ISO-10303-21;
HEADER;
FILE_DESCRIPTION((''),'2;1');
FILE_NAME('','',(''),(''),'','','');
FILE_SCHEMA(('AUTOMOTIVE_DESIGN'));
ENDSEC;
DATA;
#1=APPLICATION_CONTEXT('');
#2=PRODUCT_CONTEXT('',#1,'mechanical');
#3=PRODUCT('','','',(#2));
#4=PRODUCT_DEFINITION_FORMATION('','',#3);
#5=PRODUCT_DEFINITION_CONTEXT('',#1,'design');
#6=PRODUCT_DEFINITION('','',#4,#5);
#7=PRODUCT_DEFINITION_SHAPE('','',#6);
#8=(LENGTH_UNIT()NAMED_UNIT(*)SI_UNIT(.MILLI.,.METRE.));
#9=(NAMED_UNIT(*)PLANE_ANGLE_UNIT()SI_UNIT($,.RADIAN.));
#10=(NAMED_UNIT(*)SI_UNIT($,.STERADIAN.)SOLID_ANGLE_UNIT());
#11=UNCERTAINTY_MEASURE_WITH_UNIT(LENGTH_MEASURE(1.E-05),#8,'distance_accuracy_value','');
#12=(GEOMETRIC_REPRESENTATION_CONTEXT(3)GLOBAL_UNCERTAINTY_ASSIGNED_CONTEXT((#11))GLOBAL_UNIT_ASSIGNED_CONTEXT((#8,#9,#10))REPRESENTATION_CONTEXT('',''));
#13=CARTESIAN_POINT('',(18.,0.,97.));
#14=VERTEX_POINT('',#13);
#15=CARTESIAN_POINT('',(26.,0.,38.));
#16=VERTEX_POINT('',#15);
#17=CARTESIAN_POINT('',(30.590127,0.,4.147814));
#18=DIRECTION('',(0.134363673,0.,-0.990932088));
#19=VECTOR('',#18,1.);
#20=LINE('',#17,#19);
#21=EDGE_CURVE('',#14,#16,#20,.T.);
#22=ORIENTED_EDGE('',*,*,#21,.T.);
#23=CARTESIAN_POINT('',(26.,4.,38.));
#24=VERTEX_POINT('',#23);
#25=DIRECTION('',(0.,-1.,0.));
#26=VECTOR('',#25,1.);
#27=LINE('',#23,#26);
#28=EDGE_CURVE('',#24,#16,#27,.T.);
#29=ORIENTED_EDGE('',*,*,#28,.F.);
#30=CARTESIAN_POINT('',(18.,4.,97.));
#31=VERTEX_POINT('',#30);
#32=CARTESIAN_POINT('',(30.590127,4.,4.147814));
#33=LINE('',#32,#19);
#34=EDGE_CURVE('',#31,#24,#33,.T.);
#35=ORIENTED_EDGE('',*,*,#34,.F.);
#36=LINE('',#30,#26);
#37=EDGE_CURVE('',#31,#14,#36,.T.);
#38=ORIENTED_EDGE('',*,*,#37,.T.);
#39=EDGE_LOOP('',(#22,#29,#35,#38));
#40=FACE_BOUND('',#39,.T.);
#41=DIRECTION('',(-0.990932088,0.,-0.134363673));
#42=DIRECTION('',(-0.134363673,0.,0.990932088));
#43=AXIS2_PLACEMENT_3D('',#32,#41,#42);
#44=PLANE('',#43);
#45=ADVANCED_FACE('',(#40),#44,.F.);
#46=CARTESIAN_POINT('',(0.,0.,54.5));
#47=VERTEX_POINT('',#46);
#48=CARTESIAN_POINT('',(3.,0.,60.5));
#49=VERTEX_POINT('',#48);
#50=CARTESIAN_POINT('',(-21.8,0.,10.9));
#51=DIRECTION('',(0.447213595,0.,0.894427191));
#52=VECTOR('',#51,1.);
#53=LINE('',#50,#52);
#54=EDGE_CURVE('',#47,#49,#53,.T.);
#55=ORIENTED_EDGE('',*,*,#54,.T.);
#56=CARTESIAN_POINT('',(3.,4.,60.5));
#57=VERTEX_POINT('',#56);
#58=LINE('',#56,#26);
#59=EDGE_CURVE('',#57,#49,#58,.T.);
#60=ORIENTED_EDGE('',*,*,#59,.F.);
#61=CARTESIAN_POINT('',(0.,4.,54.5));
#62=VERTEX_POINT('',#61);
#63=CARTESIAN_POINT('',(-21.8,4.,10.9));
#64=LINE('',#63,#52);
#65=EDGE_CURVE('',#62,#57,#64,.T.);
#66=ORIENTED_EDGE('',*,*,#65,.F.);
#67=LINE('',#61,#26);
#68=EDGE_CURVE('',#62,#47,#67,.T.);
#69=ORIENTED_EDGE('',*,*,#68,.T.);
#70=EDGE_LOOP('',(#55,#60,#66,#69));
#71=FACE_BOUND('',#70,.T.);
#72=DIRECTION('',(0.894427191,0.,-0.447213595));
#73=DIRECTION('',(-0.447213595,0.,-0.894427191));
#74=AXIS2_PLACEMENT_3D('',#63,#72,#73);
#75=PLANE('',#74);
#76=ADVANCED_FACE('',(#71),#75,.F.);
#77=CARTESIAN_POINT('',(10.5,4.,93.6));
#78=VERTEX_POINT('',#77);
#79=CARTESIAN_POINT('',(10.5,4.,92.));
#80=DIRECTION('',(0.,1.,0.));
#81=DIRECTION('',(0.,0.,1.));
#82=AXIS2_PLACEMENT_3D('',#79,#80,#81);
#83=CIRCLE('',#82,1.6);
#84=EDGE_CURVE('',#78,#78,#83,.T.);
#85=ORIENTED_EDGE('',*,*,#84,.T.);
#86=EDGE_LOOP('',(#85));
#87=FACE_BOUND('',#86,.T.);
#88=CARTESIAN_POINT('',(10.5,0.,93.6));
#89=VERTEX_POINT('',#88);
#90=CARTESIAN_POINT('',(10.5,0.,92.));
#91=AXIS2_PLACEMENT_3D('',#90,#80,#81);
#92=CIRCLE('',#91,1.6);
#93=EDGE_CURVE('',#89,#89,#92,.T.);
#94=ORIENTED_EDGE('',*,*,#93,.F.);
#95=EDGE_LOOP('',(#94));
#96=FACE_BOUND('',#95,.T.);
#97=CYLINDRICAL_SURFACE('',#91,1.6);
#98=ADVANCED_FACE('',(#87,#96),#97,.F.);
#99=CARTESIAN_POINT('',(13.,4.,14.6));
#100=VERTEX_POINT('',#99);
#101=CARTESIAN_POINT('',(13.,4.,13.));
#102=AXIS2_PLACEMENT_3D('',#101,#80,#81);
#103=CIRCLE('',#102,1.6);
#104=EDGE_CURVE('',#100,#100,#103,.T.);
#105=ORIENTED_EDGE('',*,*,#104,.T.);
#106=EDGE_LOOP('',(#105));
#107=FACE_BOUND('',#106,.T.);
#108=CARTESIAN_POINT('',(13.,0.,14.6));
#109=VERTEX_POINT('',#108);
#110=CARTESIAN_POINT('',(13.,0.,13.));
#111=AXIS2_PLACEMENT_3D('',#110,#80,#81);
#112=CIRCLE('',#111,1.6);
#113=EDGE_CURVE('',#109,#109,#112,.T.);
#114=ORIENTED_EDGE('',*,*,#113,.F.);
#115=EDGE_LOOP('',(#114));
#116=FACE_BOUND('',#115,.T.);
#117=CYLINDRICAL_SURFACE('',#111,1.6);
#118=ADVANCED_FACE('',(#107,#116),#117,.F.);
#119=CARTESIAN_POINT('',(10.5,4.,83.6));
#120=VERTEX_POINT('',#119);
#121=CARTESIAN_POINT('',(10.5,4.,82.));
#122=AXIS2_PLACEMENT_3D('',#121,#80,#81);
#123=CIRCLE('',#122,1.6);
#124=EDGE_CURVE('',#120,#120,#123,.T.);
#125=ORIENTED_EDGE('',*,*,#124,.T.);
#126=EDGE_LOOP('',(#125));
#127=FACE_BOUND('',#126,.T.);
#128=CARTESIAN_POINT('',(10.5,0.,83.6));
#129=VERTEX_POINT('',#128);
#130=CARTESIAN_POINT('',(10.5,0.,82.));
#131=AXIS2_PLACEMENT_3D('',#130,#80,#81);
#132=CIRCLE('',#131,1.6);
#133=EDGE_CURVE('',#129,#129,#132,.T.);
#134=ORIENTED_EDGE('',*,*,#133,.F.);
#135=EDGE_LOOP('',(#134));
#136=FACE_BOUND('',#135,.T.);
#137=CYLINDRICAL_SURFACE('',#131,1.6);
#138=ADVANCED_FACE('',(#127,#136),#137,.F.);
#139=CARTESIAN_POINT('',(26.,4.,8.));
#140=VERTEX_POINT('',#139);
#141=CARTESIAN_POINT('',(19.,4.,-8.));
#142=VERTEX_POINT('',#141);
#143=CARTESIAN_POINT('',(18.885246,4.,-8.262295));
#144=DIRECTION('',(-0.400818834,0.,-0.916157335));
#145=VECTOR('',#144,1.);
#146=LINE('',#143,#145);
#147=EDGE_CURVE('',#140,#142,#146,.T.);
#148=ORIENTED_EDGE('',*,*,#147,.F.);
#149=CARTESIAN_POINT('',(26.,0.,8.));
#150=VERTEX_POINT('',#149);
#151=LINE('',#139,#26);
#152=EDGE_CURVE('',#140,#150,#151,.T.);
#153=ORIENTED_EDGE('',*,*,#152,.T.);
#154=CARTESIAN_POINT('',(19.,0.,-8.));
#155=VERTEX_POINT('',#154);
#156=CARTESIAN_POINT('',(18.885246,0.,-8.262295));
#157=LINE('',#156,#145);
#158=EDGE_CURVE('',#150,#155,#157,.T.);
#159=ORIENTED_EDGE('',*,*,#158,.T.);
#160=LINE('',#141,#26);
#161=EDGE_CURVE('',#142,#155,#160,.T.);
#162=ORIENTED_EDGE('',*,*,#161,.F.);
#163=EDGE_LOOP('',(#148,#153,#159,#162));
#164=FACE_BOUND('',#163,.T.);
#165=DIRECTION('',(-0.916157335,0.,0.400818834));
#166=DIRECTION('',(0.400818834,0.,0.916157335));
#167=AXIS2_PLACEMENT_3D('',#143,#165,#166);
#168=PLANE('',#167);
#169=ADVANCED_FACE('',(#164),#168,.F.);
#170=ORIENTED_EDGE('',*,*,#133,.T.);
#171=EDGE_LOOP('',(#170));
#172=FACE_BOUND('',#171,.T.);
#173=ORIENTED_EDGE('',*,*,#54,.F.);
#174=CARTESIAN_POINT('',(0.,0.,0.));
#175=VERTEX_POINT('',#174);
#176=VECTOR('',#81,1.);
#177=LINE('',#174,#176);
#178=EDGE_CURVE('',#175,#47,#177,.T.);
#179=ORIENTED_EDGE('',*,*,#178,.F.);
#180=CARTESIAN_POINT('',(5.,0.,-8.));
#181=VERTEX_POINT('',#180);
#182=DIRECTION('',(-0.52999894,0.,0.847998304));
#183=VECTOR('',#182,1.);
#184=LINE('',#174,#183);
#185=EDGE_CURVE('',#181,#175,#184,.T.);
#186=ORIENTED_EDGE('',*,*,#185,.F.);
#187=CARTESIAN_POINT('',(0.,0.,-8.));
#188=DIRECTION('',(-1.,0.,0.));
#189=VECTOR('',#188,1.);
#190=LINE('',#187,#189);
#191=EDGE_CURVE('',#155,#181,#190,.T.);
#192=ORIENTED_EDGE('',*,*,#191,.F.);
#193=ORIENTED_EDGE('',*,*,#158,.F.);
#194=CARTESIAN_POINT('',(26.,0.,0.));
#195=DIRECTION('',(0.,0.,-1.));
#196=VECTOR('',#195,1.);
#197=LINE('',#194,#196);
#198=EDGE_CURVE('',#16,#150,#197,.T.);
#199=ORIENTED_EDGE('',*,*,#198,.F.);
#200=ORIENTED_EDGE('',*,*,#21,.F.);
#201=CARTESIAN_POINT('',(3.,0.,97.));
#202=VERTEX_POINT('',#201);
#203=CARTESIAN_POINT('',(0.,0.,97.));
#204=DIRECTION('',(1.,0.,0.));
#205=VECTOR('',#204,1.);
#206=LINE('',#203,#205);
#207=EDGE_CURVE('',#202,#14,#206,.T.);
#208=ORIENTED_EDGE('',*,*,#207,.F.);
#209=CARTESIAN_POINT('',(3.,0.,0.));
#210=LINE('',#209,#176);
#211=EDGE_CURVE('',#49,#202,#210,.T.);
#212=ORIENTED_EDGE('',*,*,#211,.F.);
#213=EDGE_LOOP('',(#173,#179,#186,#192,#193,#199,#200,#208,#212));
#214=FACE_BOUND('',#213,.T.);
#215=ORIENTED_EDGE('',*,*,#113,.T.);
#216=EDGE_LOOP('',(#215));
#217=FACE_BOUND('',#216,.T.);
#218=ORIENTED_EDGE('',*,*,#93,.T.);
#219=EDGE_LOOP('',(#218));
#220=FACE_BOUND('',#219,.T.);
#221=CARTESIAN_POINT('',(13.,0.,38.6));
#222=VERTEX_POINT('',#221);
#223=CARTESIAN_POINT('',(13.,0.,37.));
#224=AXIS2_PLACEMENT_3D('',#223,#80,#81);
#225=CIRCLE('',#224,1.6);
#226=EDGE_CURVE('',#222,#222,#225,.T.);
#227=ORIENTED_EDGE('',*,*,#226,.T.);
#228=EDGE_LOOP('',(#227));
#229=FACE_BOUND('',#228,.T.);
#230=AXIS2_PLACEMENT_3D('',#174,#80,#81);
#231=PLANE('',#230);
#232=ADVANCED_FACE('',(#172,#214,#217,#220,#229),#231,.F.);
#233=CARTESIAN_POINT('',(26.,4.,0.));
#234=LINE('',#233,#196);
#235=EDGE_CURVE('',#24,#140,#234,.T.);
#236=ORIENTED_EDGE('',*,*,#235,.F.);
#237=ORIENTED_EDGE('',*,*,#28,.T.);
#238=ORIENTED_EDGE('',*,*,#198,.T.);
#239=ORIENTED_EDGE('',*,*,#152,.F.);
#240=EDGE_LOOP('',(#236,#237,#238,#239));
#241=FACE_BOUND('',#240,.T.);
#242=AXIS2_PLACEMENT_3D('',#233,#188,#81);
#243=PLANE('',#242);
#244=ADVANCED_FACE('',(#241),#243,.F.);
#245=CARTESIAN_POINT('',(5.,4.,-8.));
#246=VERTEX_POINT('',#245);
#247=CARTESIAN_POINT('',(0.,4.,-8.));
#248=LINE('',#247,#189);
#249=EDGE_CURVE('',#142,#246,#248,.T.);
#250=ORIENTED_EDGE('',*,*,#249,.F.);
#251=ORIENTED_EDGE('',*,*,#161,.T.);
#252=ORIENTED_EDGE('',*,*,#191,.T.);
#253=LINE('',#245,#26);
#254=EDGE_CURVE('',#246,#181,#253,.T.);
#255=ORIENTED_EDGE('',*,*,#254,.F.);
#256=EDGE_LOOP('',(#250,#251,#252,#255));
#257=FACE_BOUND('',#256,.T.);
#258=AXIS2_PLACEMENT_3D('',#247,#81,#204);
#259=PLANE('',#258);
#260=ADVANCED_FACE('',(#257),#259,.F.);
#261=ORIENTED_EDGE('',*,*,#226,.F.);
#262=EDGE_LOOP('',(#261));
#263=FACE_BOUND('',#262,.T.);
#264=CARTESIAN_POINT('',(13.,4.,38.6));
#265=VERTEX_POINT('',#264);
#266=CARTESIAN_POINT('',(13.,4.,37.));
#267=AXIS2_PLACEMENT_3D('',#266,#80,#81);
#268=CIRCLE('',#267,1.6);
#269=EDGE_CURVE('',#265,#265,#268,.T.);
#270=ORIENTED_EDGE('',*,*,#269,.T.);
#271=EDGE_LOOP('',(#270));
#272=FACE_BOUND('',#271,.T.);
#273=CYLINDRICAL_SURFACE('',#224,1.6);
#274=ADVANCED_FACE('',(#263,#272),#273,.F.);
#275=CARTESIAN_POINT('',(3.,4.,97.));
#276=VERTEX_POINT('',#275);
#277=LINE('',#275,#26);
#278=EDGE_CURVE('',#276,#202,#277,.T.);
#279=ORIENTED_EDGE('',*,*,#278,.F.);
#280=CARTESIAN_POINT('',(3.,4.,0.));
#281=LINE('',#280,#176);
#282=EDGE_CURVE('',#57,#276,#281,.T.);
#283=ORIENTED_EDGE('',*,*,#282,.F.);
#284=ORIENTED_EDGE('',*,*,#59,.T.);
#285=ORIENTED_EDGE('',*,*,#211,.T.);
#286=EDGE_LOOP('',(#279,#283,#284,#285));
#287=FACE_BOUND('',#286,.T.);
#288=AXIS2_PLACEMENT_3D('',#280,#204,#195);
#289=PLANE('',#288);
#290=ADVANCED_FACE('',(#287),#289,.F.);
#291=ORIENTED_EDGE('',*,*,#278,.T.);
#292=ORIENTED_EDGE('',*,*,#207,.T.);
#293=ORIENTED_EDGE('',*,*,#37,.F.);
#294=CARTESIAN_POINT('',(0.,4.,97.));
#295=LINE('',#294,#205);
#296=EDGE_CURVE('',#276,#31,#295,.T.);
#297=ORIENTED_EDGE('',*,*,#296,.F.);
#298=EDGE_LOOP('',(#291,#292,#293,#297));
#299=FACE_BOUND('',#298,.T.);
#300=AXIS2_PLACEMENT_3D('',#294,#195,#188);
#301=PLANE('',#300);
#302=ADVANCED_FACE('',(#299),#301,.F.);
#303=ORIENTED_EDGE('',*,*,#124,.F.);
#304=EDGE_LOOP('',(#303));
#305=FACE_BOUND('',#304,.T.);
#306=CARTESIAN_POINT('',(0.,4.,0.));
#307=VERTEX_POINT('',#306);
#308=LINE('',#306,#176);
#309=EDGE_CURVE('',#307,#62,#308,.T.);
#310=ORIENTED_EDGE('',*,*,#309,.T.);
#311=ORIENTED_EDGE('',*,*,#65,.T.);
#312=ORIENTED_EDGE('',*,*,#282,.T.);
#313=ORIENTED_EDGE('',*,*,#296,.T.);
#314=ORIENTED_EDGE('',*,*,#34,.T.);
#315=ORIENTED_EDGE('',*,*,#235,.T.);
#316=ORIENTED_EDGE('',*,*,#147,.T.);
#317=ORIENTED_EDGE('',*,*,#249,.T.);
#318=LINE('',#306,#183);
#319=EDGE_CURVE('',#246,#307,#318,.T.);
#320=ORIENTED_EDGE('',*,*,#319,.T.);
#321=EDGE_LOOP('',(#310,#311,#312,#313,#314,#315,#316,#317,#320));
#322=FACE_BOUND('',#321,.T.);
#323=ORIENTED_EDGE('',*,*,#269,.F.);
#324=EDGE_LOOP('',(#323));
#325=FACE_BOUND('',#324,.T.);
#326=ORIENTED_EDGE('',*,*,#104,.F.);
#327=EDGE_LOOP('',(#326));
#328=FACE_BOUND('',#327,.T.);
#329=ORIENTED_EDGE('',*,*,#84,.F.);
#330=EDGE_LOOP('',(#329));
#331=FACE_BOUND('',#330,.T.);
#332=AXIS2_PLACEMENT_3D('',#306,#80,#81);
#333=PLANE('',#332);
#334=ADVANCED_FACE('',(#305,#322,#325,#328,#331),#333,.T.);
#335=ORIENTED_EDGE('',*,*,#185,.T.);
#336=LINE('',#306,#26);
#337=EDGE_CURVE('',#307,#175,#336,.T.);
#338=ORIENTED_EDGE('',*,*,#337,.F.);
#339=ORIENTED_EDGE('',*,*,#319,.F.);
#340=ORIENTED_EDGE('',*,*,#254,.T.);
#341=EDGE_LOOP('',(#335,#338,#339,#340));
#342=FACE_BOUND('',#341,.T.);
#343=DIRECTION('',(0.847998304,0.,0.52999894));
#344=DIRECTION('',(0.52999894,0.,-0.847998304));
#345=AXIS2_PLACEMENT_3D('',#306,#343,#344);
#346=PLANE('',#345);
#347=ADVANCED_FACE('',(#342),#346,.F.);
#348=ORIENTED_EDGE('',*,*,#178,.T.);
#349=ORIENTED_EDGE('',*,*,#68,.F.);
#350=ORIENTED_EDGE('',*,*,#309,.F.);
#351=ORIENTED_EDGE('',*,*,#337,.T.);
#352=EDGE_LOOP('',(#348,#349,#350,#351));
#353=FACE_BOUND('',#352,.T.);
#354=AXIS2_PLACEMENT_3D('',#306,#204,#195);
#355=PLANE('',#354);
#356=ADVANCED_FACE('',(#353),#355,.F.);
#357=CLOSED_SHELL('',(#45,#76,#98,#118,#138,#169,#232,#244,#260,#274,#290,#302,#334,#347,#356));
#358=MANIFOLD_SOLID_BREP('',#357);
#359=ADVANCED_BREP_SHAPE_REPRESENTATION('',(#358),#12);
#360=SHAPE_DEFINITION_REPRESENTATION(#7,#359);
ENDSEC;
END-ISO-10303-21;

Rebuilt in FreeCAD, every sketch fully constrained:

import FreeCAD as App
import Part
import Sketcher

V = App.Vector
Q = App.Units.Quantity


def add_polygon(sketch, points):
    """Adds a closed chain of lines whose ends are joined by coincident constraints."""
    first, n = sketch.GeometryCount, len(points)
    for a, b in zip(points, points[1:] + points[:1]):
        sketch.addGeometry(Part.LineSegment(App.Vector(*a, 0), App.Vector(*b, 0)), False)
    for i in range(n):
        sketch.addConstraint(Sketcher.Constraint("Coincident", first + i, 2, first + (i + 1) % n, 1))

doc = App.newDocument("Part")
body = doc.addObject("PartDesign::Body", "Body")

sketch1 = doc.addObject("Sketcher::SketchObject", "Sketch")
body.addObject(sketch1)
sketch1.AttachmentSupport = (doc.XZ_Plane, [""])
sketch1.MapMode = "FlatFace"
add_polygon(sketch1, [(0, 0), (0, 54.5), (3, 60.5), (3, 97), (18, 97), (26, 38), (26, 8), (19, -8), (5, -8)])
sketch1.addConstraint(Sketcher.Constraint("Vertical", 0))
sketch1.addConstraint(Sketcher.Constraint("Vertical", 2))
sketch1.addConstraint(Sketcher.Constraint("Horizontal", 3))
sketch1.addConstraint(Sketcher.Constraint("Vertical", 5))
sketch1.addConstraint(Sketcher.Constraint("Horizontal", 7))
sketch1.addConstraint(Sketcher.Constraint("Coincident", 8, 2, -1, 1))
sketch1.addConstraint(Sketcher.Constraint("DistanceX", 3, 1, 3, 2, Q("15 mm")))
sketch1.addConstraint(Sketcher.Constraint("DistanceX", 7, 2, 7, 1, Q("14 mm")))
sketch1.addConstraint(Sketcher.Constraint("DistanceY", 5, 2, 5, 1, Q("30 mm")))
sketch1.addConstraint(Sketcher.Constraint("DistanceY", 0, 1, 0, 2, Q("54.5 mm")))
sketch1.addConstraint(Sketcher.Constraint("DistanceY", 2, 1, 2, 2, Q("36.5 mm")))
sketch1.addConstraint(Sketcher.Constraint("DistanceX", -1, 1, 1, 2, Q("3 mm")))
sketch1.addConstraint(Sketcher.Constraint("DistanceY", -1, 1, 2, 2, Q("97 mm")))
sketch1.addConstraint(Sketcher.Constraint("DistanceX", -1, 1, 4, 2, Q("26 mm")))
sketch1.addConstraint(Sketcher.Constraint("DistanceY", -1, 1, 4, 2, Q("38 mm")))
sketch1.addConstraint(Sketcher.Constraint("DistanceX", -1, 1, 6, 2, Q("19 mm")))
sketch1.addConstraint(Sketcher.Constraint("DistanceY", 6, 2, -1, 1, Q("8 mm")))
pad1 = doc.addObject("PartDesign::Pad", "Pad")
body.addObject(pad1)
pad1.Profile = sketch1
pad1.Length = 4
pad1.Reversed = True

sketch2 = doc.addObject("Sketcher::SketchObject", "Sketch001")
body.addObject(sketch2)
sketch2.AttachmentSupport = (doc.XZ_Plane, [""])
sketch2.MapMode = "FlatFace"
sketch2.AttachmentOffset = App.Placement(V(0, 0, -4), App.Rotation())
sketch2.addGeometry(Part.Circle(V(13, 13, 0), V(0, 0, 1), 1.6), False)
sketch2.addGeometry(Part.Circle(V(13, 37, 0), V(0, 0, 1), 1.6), False)
sketch2.addGeometry(Part.Circle(V(10.5, 82, 0), V(0, 0, 1), 1.6), False)
sketch2.addGeometry(Part.Circle(V(10.5, 92, 0), V(0, 0, 1), 1.6), False)
sketch2.addConstraint(Sketcher.Constraint("Equal", 0, 1))
sketch2.addConstraint(Sketcher.Constraint("Equal", 1, 2))
sketch2.addConstraint(Sketcher.Constraint("Equal", 2, 3))
sketch2.addConstraint(Sketcher.Constraint("Vertical", 0, 3, 1, 3))
sketch2.addConstraint(Sketcher.Constraint("Vertical", 2, 3, 3, 3))
sketch2.addConstraint(Sketcher.Constraint("Diameter", 0, Q("3.2 mm")))
sketch2.addConstraint(Sketcher.Constraint("DistanceX", -1, 1, 0, 3, Q("13 mm")))
sketch2.addConstraint(Sketcher.Constraint("DistanceY", -1, 1, 0, 3, Q("13 mm")))
sketch2.addConstraint(Sketcher.Constraint("DistanceY", -1, 1, 1, 3, Q("37 mm")))
sketch2.addConstraint(Sketcher.Constraint("DistanceY", -1, 1, 2, 3, Q("82 mm")))
sketch2.addConstraint(Sketcher.Constraint("DistanceY", -1, 1, 3, 3, Q("92 mm")))
sketch2.addConstraint(Sketcher.Constraint("DistanceX", -1, 1, 2, 3, Q("10.5 mm")))
pocket1 = doc.addObject("PartDesign::Pocket", "Pocket")
body.addObject(pocket1)
pocket1.Profile = sketch2
pocket1.Type = "ThroughAll"
pocket1.Reversed = True

doc.recompute()
